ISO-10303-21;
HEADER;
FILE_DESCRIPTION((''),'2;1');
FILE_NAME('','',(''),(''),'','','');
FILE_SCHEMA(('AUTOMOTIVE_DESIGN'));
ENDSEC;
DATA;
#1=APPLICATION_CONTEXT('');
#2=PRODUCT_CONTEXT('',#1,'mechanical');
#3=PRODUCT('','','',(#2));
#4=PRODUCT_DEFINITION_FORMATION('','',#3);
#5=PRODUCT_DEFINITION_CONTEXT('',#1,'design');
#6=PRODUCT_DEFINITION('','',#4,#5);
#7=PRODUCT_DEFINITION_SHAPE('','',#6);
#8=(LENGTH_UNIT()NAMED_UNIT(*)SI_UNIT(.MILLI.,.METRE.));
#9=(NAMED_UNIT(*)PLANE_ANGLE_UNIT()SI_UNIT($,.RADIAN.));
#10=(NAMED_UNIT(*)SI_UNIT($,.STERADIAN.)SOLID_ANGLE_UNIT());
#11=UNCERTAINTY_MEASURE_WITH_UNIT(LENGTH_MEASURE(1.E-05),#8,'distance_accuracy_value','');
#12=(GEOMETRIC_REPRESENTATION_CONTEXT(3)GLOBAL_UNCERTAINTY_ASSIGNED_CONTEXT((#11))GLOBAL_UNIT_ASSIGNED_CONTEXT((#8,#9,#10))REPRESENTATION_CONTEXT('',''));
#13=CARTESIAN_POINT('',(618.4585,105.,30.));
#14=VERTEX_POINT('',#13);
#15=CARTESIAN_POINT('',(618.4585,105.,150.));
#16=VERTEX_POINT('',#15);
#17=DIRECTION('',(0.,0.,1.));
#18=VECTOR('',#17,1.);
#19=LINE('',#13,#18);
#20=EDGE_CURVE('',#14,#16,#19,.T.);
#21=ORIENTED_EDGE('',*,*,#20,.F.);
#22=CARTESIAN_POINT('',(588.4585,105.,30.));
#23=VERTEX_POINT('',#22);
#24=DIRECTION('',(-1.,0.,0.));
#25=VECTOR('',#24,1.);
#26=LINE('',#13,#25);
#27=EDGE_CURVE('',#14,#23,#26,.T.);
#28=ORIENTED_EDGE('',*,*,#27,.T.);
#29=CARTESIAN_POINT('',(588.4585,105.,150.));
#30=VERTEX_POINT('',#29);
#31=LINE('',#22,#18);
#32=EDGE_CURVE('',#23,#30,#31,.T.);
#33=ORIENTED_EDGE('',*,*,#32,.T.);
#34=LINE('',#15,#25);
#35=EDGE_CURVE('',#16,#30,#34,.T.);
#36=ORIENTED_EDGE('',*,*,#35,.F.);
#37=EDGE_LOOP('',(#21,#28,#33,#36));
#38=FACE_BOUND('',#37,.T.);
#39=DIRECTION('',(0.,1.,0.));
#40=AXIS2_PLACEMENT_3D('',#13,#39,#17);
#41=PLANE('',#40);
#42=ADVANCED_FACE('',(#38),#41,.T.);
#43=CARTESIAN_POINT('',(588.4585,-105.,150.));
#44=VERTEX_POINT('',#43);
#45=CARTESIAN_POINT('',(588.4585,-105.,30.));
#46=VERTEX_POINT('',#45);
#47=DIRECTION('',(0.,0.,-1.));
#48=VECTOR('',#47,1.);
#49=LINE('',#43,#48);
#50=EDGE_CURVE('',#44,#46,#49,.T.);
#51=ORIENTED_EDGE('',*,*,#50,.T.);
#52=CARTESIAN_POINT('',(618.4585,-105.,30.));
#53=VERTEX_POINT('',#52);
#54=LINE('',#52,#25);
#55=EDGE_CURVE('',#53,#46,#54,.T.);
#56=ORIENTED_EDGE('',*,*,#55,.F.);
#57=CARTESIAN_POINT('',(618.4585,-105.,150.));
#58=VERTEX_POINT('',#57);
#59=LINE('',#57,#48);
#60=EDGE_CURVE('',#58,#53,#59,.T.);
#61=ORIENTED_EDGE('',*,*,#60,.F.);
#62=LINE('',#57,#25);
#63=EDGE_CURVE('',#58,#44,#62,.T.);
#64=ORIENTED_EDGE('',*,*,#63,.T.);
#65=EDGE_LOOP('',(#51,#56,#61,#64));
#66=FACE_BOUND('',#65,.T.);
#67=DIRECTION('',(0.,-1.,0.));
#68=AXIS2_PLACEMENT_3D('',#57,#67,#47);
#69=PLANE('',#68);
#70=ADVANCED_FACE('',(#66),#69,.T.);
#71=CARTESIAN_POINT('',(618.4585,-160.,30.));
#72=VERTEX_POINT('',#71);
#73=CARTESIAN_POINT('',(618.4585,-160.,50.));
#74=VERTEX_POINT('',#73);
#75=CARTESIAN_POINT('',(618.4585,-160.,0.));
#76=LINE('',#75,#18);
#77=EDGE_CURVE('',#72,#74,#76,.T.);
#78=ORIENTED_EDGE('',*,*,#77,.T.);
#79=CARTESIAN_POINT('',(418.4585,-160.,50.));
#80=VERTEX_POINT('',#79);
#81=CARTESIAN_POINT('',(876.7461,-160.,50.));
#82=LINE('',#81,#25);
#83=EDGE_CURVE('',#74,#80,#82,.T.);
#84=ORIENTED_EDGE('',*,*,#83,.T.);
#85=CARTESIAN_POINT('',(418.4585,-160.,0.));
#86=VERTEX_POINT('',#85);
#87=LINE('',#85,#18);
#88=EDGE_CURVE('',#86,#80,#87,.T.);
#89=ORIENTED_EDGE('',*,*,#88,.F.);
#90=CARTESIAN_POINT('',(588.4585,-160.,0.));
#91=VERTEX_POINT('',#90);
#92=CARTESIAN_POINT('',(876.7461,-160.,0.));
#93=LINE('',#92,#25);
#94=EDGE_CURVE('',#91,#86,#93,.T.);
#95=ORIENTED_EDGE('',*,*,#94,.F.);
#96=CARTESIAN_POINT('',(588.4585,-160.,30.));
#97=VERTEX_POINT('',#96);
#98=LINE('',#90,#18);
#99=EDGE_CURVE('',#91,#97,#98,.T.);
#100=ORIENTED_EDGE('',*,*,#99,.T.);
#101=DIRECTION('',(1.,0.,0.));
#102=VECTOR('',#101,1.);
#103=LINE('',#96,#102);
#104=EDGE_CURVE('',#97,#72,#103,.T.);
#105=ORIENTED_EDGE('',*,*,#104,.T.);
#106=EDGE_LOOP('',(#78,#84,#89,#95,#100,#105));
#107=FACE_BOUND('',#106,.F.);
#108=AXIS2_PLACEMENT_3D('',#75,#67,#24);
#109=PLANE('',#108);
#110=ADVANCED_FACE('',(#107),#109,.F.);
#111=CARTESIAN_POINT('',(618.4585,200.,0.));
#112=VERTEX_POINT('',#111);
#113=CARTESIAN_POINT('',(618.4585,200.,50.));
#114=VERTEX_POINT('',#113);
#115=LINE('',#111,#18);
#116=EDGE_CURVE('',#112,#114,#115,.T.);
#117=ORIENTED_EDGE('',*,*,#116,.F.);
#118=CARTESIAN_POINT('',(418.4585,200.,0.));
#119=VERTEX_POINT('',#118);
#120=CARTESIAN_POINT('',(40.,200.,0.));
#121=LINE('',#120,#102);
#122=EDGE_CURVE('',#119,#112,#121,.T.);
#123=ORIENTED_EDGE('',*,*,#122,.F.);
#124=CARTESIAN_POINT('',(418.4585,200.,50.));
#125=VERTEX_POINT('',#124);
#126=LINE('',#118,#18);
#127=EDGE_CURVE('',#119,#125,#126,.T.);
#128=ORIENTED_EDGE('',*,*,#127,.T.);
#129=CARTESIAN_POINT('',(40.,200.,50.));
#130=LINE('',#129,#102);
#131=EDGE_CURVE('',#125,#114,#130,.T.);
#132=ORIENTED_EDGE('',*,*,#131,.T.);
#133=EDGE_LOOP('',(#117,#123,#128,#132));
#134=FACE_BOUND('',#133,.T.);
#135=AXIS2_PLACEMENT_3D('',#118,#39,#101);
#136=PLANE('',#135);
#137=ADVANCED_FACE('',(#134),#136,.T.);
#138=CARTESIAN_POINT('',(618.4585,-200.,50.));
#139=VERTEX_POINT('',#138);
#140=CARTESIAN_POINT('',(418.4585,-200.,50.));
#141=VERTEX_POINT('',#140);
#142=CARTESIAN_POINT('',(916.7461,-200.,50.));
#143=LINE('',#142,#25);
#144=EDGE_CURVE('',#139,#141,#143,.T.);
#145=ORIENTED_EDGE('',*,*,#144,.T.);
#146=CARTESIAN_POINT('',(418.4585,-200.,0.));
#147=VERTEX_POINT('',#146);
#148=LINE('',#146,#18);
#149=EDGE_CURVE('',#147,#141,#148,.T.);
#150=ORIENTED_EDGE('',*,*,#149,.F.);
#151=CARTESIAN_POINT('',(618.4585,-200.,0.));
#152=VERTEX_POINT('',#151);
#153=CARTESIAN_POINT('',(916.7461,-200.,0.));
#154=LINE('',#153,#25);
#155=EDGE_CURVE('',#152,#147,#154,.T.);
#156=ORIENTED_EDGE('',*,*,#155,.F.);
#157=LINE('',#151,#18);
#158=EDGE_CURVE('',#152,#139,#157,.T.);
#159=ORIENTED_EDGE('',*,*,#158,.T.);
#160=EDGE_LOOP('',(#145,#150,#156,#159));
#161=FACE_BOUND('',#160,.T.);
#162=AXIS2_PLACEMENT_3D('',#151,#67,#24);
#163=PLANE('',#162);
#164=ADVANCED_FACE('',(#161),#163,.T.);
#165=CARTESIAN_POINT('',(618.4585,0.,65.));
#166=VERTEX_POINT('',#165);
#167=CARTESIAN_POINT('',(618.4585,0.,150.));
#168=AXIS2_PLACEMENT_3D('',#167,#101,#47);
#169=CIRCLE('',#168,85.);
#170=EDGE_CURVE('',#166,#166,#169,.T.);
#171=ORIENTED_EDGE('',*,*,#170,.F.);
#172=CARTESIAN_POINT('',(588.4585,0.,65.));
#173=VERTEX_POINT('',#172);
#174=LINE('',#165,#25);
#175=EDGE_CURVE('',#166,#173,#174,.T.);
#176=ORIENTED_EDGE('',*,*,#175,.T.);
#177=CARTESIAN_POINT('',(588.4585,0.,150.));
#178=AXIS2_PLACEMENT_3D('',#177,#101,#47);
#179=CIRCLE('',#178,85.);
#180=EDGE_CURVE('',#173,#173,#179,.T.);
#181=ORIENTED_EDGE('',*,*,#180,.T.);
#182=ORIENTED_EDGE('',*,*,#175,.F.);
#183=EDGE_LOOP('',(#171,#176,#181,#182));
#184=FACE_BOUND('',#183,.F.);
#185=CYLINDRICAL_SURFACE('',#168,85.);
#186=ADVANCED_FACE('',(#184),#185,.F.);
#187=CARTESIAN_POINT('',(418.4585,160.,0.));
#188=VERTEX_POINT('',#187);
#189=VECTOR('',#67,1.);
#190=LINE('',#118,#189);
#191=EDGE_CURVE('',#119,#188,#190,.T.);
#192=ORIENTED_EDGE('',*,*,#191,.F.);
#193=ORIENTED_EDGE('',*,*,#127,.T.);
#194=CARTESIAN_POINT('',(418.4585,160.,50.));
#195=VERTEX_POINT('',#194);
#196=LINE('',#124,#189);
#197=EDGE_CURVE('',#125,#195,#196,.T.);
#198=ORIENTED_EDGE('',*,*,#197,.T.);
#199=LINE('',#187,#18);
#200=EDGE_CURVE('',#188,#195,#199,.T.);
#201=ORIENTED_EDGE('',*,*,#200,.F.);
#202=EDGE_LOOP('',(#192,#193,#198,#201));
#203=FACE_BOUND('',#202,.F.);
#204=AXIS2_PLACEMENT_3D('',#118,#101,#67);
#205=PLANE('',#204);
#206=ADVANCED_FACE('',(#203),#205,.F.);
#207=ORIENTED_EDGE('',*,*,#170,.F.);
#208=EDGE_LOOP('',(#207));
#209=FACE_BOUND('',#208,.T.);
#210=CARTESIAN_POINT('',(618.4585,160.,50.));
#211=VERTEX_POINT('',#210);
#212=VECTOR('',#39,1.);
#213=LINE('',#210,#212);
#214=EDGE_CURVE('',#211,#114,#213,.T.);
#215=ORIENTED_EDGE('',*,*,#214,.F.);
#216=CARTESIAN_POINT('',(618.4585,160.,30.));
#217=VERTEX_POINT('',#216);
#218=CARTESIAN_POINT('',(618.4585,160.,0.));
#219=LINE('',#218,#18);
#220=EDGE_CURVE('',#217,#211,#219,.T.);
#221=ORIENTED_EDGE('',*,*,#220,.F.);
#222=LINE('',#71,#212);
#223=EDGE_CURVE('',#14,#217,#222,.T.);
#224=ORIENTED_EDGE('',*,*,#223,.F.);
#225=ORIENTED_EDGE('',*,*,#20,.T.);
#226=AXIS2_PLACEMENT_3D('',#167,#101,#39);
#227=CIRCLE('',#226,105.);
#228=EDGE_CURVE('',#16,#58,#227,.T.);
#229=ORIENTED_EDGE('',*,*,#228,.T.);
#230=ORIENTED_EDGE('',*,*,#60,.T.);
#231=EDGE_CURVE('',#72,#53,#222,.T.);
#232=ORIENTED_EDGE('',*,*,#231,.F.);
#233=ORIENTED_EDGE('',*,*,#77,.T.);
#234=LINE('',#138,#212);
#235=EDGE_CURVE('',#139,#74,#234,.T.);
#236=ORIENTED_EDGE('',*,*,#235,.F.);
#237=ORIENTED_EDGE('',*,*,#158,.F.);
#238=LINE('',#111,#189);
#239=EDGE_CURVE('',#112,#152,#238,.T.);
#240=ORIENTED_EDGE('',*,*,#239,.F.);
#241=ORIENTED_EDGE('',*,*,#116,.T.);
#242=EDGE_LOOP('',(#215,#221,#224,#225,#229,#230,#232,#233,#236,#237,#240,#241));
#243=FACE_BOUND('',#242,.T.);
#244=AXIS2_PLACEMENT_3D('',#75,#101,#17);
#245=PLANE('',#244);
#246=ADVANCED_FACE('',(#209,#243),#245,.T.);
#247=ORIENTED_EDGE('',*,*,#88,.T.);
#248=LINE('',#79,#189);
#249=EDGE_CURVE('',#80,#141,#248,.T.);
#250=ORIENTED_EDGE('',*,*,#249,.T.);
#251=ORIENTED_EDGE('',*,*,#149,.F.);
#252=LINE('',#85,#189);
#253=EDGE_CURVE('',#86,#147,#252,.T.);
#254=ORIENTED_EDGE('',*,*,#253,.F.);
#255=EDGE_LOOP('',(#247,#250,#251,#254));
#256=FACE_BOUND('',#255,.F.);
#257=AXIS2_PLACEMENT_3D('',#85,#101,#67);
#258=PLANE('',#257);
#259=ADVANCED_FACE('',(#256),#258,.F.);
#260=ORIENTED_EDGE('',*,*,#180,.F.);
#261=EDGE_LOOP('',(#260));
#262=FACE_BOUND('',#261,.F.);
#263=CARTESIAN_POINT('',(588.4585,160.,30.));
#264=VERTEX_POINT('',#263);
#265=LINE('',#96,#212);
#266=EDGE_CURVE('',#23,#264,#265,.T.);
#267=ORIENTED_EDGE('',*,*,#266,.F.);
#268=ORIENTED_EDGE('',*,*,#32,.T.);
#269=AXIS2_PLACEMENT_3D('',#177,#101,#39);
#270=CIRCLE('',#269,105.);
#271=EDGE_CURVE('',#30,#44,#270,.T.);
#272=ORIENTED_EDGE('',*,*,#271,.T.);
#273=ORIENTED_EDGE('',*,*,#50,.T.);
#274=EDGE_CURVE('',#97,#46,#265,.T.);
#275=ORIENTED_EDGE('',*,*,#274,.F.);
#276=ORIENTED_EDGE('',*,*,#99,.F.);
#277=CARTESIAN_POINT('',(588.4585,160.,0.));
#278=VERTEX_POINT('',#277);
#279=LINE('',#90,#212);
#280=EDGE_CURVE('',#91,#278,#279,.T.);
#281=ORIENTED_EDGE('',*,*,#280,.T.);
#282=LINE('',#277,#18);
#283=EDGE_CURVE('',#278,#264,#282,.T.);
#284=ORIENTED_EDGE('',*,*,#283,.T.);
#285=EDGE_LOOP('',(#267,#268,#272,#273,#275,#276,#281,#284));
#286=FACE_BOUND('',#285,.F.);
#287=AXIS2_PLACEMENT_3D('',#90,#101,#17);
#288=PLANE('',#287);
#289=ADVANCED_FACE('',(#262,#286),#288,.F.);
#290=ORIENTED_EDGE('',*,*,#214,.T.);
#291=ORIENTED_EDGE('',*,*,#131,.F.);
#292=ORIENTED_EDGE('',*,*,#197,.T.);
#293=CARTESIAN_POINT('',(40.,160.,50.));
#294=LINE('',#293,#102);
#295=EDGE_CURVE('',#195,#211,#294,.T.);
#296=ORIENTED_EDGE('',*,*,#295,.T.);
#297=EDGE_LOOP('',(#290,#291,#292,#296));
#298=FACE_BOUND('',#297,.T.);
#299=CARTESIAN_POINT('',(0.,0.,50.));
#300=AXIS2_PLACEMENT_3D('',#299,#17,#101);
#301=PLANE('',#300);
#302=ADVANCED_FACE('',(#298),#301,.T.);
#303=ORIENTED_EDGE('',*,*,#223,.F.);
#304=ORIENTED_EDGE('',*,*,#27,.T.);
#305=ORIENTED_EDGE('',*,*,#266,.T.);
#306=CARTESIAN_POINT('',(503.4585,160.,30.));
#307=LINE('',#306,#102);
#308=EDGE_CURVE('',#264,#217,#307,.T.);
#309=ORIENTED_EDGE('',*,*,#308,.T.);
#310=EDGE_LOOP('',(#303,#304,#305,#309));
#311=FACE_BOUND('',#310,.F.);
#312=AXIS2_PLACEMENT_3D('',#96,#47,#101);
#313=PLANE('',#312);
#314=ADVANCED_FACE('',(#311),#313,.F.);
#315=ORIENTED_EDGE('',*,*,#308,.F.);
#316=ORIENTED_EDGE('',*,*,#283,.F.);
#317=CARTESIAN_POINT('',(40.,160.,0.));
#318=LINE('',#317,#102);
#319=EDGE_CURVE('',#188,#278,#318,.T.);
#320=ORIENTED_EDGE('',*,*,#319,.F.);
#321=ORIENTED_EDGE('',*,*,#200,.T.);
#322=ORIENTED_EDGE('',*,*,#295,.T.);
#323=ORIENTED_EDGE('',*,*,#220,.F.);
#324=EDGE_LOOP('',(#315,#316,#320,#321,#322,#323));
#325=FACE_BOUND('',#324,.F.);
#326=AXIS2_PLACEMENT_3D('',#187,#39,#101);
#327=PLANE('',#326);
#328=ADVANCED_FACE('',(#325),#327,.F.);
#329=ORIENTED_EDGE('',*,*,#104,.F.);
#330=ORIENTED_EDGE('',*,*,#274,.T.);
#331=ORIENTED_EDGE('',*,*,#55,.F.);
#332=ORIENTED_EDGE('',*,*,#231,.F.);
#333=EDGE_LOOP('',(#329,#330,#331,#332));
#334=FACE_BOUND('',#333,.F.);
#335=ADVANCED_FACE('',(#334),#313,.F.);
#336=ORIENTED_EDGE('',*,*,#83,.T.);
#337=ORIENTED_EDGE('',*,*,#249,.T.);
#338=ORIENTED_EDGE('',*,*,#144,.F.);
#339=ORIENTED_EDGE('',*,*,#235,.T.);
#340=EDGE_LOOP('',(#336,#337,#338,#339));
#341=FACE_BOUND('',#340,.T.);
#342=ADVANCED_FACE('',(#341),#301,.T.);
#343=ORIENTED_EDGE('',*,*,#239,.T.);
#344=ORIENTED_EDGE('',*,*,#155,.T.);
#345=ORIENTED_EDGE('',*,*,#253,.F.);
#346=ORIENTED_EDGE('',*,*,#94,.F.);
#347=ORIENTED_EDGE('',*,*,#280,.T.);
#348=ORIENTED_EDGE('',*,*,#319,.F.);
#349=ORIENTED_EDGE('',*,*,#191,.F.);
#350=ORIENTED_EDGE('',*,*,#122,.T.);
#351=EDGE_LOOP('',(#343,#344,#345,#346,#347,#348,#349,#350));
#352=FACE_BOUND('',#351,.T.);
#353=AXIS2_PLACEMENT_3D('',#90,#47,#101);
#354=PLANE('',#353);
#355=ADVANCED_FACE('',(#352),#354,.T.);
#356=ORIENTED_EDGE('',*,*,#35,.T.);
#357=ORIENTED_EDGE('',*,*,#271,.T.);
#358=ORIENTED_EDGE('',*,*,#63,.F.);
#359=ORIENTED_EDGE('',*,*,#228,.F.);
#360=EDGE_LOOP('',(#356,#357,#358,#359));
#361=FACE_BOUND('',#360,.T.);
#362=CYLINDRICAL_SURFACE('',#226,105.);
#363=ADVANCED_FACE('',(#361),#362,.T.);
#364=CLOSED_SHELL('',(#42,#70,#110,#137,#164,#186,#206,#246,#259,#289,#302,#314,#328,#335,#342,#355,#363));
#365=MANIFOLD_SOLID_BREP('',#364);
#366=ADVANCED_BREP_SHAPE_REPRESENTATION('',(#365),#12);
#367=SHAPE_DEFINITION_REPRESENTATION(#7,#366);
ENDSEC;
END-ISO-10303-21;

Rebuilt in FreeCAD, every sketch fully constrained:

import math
import FreeCAD as App
import Part
import Sketcher
from FreeCAD import Vector


def add_polygon(sketch, points):
    """Adds a closed chain of lines whose ends are joined by coincident constraints."""
    first, n = sketch.GeometryCount, len(points)
    for a, b in zip(points, points[1:] + points[:1]):
        sketch.addGeometry(Part.LineSegment(App.Vector(*a, 0), App.Vector(*b, 0)), False)
    for i in range(n):
        sketch.addConstraint(Sketcher.Constraint("Coincident", first + i, 2, first + (i + 1) % n, 1))

doc = App.newDocument("Part")
body = doc.addObject("PartDesign::Body", "Body")
body.AllowCompound = True

# Sketch on XY plane
sketch1 = body.newObject("Sketcher::SketchObject", "Sketch")
sketch1.AttachmentSupport = (doc.getObject("XY_Plane"), [""])
sketch1.MapMode = "FlatFace"
add_polygon(sketch1, [(418, 200), (418, 160), (618, 160), (618, 200)])  # lines 0-3
add_polygon(sketch1, [(618, -200), (618, -160), (418, -160), (418, -200)])  # lines 4-7
sketch1.addConstraint([
    Sketcher.Constraint("Vertical", 0),
    Sketcher.Constraint("Horizontal", 1),
    Sketcher.Constraint("Vertical", 2),
    Sketcher.Constraint("Horizontal", 3),
    Sketcher.Constraint("Vertical", 4),
    Sketcher.Constraint("Horizontal", 5),
    Sketcher.Constraint("Vertical", 6),
    Sketcher.Constraint("Horizontal", 7),
    Sketcher.Constraint("Symmetric", 1, 2, 4, 2, -1),
    Sketcher.Constraint("Symmetric", 3, 2, 6, 2, -1),
    Sketcher.Constraint("DistanceX", 1, 1, 1, 2, 200.0),
    Sketcher.Constraint("DistanceY", -1, 1, 2, 2, 200.0),
    Sketcher.Constraint("DistanceY", 0, 2, 0, 1, 40.0),
    Sketcher.Constraint("DistanceX", -1, 1, 0, 2, 418.4585),
])
pad1 = body.newObject("PartDesign::Pad", "Pad")
pad1.Profile = sketch1
pad1.Length = 50

# Sketch on XZ plane
sketch2 = body.newObject("Sketcher::SketchObject", "Sketch001")
sketch2.AttachmentSupport = (doc.getObject("XZ_Plane"), [""])
sketch2.MapMode = "FlatFace"
sketch2.AttachmentOffset = App.Placement(Vector(0, 0, 160), App.Rotation())
add_polygon(sketch2, [(618, 0), (588, 0), (588, 30), (618, 30)])  # lines 0-3
sketch2.addConstraint([
    Sketcher.Constraint("Horizontal", 0),
    Sketcher.Constraint("Vertical", 1),
    Sketcher.Constraint("Horizontal", 2),
    Sketcher.Constraint("Vertical", 3),
    Sketcher.Constraint("PointOnObject", 0, 2, -1),
    Sketcher.Constraint("Equal", 2, 1),
    Sketcher.Constraint("DistanceX", 0, 2, 0, 1, 30.0),
    Sketcher.Constraint("DistanceX", -1, 1, 0, 2, 588.4585),
])
pad2 = body.newObject("PartDesign::Pad", "Pad001")
pad2.Profile = sketch2
pad2.Type = "UpToFirst"
pad2.Reversed = True

# Sketch on YZ plane
sketch3 = body.newObject("Sketcher::SketchObject", "Sketch002")
sketch3.AttachmentSupport = (doc.getObject("YZ_Plane"), [""])
sketch3.MapMode = "FlatFace"
sketch3.AttachmentOffset = App.Placement(Vector(0, 0, 618.4585), App.Rotation())
sketch3.addGeometry([
    Part.LineSegment(Vector(-105, 150, 0), Vector(-105, 30, 0)),  # 0
    Part.LineSegment(Vector(-105, 30, 0), Vector(105, 30, 0)),  # 1
    Part.LineSegment(Vector(105, 30, 0), Vector(105, 150, 0)),  # 2
    Part.ArcOfCircle(Part.Circle(Vector(0, 150, 0), Vector(0, 0, 1), 105), math.radians(0), math.radians(180)),  # 3
    Part.Circle(Vector(0, 150, 0), Vector(0, 0, 1), 85),  # 4
], False)
sketch3.addConstraint([
    Sketcher.Constraint("Coincident", 0, 2, 1, 1),
    Sketcher.Constraint("Coincident", 1, 2, 2, 1),
    Sketcher.Constraint("Tangent", 2, 2, 3, 1),
    Sketcher.Constraint("Tangent", 3, 2, 0, 1),
    Sketcher.Constraint("Vertical", 0),
    Sketcher.Constraint("Horizontal", 1),
    Sketcher.Constraint("Vertical", 2),
    Sketcher.Constraint("Coincident", 4, 3, 3, 3),
    Sketcher.Constraint("PointOnObject", 3, 3, -2),
    Sketcher.Constraint("Diameter", 4, 170.0),
    Sketcher.Constraint("DistanceY", 0, 2, 0, 1, 120.0),
    Sketcher.Constraint("Radius", 3, 105.0),
    Sketcher.Constraint("DistanceY", -1, 1, 3, 3, 150.0),
])
pad3 = body.newObject("PartDesign::Pad", "Pad002")
pad3.Profile = sketch3
pad3.Length = 30
pad3.Reversed = True

doc.recompute()
